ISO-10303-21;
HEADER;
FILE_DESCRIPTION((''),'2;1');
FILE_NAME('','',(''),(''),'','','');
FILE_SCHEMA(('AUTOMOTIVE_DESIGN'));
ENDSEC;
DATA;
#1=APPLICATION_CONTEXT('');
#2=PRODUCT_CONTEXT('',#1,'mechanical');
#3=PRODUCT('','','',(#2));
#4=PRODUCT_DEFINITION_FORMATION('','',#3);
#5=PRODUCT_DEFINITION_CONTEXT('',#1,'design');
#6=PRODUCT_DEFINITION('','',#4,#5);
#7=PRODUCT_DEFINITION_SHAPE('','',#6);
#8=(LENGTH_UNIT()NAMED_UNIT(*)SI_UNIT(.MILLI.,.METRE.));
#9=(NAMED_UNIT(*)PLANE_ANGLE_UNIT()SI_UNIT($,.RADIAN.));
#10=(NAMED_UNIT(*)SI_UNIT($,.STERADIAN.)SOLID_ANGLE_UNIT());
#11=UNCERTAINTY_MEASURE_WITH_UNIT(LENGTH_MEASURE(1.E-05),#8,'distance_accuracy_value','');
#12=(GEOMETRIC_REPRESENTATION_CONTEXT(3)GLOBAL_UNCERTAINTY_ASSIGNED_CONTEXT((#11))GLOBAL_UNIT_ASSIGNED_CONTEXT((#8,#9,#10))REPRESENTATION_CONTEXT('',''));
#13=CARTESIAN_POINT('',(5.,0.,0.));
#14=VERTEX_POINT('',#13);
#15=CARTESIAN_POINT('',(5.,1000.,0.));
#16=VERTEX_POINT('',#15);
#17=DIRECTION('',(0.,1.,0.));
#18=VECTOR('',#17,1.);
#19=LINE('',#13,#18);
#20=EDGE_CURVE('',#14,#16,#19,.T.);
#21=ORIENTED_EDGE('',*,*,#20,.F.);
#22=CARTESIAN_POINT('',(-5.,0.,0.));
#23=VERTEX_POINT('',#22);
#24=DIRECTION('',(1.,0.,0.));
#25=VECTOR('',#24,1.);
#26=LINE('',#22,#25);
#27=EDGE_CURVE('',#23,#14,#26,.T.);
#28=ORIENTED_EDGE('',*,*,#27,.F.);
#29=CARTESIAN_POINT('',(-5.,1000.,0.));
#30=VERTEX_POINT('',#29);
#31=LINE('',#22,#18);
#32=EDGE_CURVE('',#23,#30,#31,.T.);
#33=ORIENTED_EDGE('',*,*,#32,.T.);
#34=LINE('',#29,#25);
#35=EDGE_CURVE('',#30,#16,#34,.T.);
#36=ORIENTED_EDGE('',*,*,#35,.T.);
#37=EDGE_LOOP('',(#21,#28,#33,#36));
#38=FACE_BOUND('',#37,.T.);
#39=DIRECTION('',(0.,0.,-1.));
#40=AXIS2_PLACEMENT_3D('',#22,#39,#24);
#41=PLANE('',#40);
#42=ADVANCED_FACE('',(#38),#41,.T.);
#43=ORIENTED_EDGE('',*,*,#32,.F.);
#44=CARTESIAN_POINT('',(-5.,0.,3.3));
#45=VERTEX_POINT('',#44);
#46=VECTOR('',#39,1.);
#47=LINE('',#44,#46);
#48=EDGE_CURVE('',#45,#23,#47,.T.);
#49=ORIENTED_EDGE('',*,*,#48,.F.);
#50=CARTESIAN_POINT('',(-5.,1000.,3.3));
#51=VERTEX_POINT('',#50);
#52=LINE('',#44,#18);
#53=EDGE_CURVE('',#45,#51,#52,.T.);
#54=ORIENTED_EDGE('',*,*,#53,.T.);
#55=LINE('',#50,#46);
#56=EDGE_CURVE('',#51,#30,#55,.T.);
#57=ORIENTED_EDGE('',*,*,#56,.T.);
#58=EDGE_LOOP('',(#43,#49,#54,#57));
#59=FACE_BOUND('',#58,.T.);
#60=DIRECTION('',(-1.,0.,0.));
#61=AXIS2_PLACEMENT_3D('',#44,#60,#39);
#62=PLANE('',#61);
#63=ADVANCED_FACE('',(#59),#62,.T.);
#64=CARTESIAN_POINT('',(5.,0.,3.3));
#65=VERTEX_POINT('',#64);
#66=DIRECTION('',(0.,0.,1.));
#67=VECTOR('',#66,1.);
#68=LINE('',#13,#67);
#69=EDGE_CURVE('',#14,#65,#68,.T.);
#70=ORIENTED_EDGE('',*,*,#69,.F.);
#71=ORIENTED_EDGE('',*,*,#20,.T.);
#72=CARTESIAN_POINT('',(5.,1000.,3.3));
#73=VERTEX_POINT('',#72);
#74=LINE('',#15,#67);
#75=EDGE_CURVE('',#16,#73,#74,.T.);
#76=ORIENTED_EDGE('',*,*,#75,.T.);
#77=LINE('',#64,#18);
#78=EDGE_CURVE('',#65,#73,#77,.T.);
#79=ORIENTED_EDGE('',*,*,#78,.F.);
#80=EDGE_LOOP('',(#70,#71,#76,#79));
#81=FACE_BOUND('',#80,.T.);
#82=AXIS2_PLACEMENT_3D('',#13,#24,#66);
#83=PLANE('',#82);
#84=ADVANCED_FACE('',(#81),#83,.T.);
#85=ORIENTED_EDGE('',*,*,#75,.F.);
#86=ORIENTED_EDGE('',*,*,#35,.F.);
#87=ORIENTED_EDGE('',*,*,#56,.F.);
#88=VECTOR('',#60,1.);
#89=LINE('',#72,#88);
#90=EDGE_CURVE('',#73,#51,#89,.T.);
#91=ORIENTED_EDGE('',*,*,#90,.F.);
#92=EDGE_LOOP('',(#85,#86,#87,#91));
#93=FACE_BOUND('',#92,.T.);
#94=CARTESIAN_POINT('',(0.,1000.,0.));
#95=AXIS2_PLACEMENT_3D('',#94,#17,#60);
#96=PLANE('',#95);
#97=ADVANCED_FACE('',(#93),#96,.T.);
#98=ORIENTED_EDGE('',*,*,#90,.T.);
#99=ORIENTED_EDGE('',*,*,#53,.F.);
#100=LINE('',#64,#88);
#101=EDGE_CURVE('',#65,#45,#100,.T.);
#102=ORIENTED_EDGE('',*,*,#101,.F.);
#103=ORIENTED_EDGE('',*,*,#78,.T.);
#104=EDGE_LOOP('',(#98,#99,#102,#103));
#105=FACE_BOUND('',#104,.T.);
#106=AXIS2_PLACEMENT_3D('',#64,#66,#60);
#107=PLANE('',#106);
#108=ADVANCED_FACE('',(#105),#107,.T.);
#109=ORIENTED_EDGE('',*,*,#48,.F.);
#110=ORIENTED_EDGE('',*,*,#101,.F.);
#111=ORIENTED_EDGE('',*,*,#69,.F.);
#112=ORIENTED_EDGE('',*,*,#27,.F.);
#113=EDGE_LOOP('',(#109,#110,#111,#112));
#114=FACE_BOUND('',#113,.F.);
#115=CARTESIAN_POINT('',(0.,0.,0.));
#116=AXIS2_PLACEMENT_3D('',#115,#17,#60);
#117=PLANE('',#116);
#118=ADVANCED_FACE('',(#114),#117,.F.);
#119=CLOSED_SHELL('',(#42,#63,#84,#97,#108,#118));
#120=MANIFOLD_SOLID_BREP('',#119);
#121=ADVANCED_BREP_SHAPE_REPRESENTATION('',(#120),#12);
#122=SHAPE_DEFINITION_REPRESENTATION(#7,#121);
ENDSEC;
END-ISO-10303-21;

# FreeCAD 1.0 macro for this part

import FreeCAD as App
import Part
import Sketcher

V = App.Vector


def add_polygon(sketch, points):
    """Adds a closed chain of lines whose ends are joined by coincident constraints."""
    first, n = sketch.GeometryCount, len(points)
    for a, b in zip(points, points[1:] + points[:1]):
        sketch.addGeometry(Part.LineSegment(App.Vector(*a, 0), App.Vector(*b, 0)), False)
    for i in range(n):
        sketch.addConstraint(Sketcher.Constraint("Coincident", first + i, 2, first + (i + 1) % n, 1))

doc = App.newDocument("Part")
params = doc.addObject("Spreadsheet::Sheet", "Params")
for row, (alias, value) in enumerate([
    ("sketch1_width", "10 mm"),
    ("sketch1_height", "3.3 mm"),
    ("pad1_length", "1000 mm"),
], start=1):
    params.set(f"A{row}", alias)
    params.set(f"B{row}", "=" + value)
    params.setAlias(f"B{row}", alias)

body = doc.addObject("PartDesign::Body", "Body")

# Sketch on XZ plane
sketch1 = body.newObject("Sketcher::SketchObject", "Sketch")
sketch1.AttachmentSupport = (doc.getObject("XZ_Plane"), [""])
sketch1.MapMode = "FlatFace"
add_polygon(sketch1, [(-5, 3.3), (5, 3.3), (5, 0), (-5, 0)])  # lines 0-3
sketch1.addConstraint([
    Sketcher.Constraint("Horizontal", 0),
    Sketcher.Constraint("Vertical", 1),
    Sketcher.Constraint("Horizontal", 2),
    Sketcher.Constraint("Vertical", 3),
    Sketcher.Constraint("Symmetric", 1, 2, 2, 2, -1, 1),
    Sketcher.Constraint("DistanceX", 0, 1, 0, 2, 10.0),
    Sketcher.Constraint("DistanceY", 1, 2, 1, 1, 3.3),
])
sketch1.setExpression("Constraints[9]", "Params.sketch1_width")
sketch1.setExpression("Constraints[10]", "Params.sketch1_height")
pad1 = body.newObject("PartDesign::Pad", "Pad")
pad1.Profile = sketch1
pad1.setExpression("Length", "Params.pad1_length")
pad1.Reversed = True

doc.recompute()
